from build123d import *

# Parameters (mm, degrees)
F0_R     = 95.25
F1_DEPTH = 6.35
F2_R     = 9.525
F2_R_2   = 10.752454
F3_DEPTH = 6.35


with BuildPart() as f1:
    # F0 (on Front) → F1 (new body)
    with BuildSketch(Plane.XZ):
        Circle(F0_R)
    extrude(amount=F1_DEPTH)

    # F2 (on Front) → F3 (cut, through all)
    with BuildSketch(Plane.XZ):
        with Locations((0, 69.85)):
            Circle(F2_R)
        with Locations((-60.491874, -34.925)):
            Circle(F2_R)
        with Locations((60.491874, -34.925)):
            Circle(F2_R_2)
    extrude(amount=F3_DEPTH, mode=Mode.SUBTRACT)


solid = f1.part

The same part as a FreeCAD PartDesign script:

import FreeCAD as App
import Part
import Sketcher
from FreeCAD import Vector
Q = App.Units.Quantity

doc = App.newDocument("Part")
body = doc.addObject("PartDesign::Body", "Body")

# Sketch on XZ plane
sketch1 = body.newObject("Sketcher::SketchObject", "Sketch")
sketch1.AttachmentSupport = (doc.getObject("XZ_Plane"), [""])
sketch1.MapMode = "FlatFace"
sketch1.addGeometry(Part.Circle(Vector(0, 0, 0), Vector(0, 0, 1), 95), False)
sketch1.addConstraint(Sketcher.Constraint("Coincident", 0, 3, -1, 1))
sketch1.addConstraint(Sketcher.Constraint("Diameter", 0, Q("7.5 in")))
pad1 = body.newObject("PartDesign::Pad", "Pad")
pad1.Profile = sketch1
pad1.Length = Q("0.25 in")

# Sketch on XZ plane
sketch2 = body.newObject("Sketcher::SketchObject", "Sketch001")
sketch2.AttachmentSupport = (doc.getObject("XZ_Plane"), [""])
sketch2.MapMode = "FlatFace"
sketch2.addGeometry(Part.Circle(Vector(0, 70, 0), Vector(0, 0, 1), 10), False)
sketch2.addGeometry(Part.Circle(Vector(-60, -35, 0), Vector(0, 0, 1), 10), False)
sketch2.addGeometry(Part.Circle(Vector(60, -35, 0), Vector(0, 0, 1), 11), False)
sketch2.addConstraint(Sketcher.Constraint("Equal", 0, 1))
sketch2.addConstraint(Sketcher.Constraint("Symmetric", 1, 3, 2, 3, -2))
sketch2.addConstraint(Sketcher.Constraint("PointOnObject", 0, 3, -2))
sketch2.addConstraint(Sketcher.Constraint("Diameter", 0, Q("0.75 in")))
sketch2.addConstraint(Sketcher.Constraint("DistanceY", -1, 1, 0, 3, Q("2.75 in")))
sketch2.addConstraint(Sketcher.Constraint("Diameter", 2, 21.504908))
sketch2.addConstraint(Sketcher.Constraint("DistanceY", 1, 3, -1, 1, Q("1.375 in")))
sketch2.addConstraint(Sketcher.Constraint("DistanceX", 1, 3, 2, 3, 120.983748))
pocket1 = body.newObject("PartDesign::Pocket", "Pocket")
pocket1.Profile = sketch2
pocket1.Type = "ThroughAll"
pocket1.Reversed = True

doc.recompute()
